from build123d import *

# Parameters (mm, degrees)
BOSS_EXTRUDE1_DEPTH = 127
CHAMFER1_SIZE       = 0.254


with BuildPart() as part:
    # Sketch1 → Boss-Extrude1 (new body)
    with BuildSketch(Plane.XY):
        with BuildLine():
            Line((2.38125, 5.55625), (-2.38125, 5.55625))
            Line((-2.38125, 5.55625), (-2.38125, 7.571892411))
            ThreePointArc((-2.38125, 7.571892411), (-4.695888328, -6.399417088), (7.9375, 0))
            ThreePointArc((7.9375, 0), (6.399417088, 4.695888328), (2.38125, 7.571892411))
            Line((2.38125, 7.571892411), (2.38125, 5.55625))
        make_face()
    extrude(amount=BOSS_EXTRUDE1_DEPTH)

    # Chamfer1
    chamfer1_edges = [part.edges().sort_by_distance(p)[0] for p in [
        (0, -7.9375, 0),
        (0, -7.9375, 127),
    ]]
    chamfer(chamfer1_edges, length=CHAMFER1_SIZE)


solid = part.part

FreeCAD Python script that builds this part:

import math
import FreeCAD as App
import Part
import Sketcher
Q = App.Units.Quantity


def edges_at(feature, points):
    """Names of the edges that pass closest to the given points."""
    edges = feature.Shape.Edges
    near = lambda p: min(range(len(edges)), key=lambda i: edges[i].distToShape(Part.Vertex(*p))[0])
    return sorted({f"Edge{near(p) + 1}" for p in points})

doc = App.newDocument("Part")
body = doc.addObject("PartDesign::Body", "Body")

# Sketch on XY plane
sketch1 = body.newObject("Sketcher::SketchObject", "Sketch")
sketch1.AttachmentSupport = (doc.getObject("XY_Plane"), [""])
sketch1.MapMode = "FlatFace"
sketch1.addGeometry([
    Part.LineSegment(App.Vector(2.4, 5.6, 0), App.Vector(-2.4, 5.6, 0)),  # 0
    Part.LineSegment(App.Vector(-2.4, 5.6, 0), App.Vector(-2.4, 7.6, 0)),  # 1
    Part.ArcOfCircle(Part.Circle(App.Vector(0, 0, 0), App.Vector(0, 0, 1), 7.9), math.radians(107), math.radians(360)),  # 2
    Part.ArcOfCircle(Part.Circle(App.Vector(0, 0, 0), App.Vector(0, 0, 1), 7.9), math.radians(0), math.radians(73)),  # 3
    Part.LineSegment(App.Vector(2.4, 7.6, 0), App.Vector(2.4, 5.6, 0)),  # 4
], False)
sketch1.addConstraint([
    Sketcher.Constraint("Coincident", 0, 2, 1, 1),
    Sketcher.Constraint("Coincident", 1, 2, 2, 1),
    Sketcher.Constraint("Tangent", 2, 2, 3, 1),
    Sketcher.Constraint("Coincident", 3, 2, 4, 1),
    Sketcher.Constraint("Coincident", 4, 2, 0, 1),
    Sketcher.Constraint("Horizontal", 0),
    Sketcher.Constraint("Vertical", 1),
    Sketcher.Constraint("Vertical", 4),
    Sketcher.Constraint("Coincident", 2, 3, -1, 1),
    Sketcher.Constraint("Equal", 2, 3),
    Sketcher.Constraint("PointOnObject", 2, 2, -1),
    Sketcher.Constraint("Horizontal", 1, 2, 3, 2),
    Sketcher.Constraint("Radius", 2, Q("0.3125 in")),
    Sketcher.Constraint("DistanceX", 0, 2, 0, 1, Q("0.1875 in")),
    Sketcher.Constraint("DistanceY", -1, 1, 0, 2, Q("0.21875 in")),
])
pad1 = body.newObject("PartDesign::Pad", "Pad")
pad1.Profile = sketch1
pad1.Length = Q("5 in")
doc.recompute()

chamfer = body.newObject("PartDesign::Chamfer", "Chamfer")
chamfer.Base = (pad1, edges_at(pad1, [(-4.696, -6.399, 0), (-4.696, -6.399, 127)]))
chamfer.Size = Q("0.01 in")

doc.recompute()
